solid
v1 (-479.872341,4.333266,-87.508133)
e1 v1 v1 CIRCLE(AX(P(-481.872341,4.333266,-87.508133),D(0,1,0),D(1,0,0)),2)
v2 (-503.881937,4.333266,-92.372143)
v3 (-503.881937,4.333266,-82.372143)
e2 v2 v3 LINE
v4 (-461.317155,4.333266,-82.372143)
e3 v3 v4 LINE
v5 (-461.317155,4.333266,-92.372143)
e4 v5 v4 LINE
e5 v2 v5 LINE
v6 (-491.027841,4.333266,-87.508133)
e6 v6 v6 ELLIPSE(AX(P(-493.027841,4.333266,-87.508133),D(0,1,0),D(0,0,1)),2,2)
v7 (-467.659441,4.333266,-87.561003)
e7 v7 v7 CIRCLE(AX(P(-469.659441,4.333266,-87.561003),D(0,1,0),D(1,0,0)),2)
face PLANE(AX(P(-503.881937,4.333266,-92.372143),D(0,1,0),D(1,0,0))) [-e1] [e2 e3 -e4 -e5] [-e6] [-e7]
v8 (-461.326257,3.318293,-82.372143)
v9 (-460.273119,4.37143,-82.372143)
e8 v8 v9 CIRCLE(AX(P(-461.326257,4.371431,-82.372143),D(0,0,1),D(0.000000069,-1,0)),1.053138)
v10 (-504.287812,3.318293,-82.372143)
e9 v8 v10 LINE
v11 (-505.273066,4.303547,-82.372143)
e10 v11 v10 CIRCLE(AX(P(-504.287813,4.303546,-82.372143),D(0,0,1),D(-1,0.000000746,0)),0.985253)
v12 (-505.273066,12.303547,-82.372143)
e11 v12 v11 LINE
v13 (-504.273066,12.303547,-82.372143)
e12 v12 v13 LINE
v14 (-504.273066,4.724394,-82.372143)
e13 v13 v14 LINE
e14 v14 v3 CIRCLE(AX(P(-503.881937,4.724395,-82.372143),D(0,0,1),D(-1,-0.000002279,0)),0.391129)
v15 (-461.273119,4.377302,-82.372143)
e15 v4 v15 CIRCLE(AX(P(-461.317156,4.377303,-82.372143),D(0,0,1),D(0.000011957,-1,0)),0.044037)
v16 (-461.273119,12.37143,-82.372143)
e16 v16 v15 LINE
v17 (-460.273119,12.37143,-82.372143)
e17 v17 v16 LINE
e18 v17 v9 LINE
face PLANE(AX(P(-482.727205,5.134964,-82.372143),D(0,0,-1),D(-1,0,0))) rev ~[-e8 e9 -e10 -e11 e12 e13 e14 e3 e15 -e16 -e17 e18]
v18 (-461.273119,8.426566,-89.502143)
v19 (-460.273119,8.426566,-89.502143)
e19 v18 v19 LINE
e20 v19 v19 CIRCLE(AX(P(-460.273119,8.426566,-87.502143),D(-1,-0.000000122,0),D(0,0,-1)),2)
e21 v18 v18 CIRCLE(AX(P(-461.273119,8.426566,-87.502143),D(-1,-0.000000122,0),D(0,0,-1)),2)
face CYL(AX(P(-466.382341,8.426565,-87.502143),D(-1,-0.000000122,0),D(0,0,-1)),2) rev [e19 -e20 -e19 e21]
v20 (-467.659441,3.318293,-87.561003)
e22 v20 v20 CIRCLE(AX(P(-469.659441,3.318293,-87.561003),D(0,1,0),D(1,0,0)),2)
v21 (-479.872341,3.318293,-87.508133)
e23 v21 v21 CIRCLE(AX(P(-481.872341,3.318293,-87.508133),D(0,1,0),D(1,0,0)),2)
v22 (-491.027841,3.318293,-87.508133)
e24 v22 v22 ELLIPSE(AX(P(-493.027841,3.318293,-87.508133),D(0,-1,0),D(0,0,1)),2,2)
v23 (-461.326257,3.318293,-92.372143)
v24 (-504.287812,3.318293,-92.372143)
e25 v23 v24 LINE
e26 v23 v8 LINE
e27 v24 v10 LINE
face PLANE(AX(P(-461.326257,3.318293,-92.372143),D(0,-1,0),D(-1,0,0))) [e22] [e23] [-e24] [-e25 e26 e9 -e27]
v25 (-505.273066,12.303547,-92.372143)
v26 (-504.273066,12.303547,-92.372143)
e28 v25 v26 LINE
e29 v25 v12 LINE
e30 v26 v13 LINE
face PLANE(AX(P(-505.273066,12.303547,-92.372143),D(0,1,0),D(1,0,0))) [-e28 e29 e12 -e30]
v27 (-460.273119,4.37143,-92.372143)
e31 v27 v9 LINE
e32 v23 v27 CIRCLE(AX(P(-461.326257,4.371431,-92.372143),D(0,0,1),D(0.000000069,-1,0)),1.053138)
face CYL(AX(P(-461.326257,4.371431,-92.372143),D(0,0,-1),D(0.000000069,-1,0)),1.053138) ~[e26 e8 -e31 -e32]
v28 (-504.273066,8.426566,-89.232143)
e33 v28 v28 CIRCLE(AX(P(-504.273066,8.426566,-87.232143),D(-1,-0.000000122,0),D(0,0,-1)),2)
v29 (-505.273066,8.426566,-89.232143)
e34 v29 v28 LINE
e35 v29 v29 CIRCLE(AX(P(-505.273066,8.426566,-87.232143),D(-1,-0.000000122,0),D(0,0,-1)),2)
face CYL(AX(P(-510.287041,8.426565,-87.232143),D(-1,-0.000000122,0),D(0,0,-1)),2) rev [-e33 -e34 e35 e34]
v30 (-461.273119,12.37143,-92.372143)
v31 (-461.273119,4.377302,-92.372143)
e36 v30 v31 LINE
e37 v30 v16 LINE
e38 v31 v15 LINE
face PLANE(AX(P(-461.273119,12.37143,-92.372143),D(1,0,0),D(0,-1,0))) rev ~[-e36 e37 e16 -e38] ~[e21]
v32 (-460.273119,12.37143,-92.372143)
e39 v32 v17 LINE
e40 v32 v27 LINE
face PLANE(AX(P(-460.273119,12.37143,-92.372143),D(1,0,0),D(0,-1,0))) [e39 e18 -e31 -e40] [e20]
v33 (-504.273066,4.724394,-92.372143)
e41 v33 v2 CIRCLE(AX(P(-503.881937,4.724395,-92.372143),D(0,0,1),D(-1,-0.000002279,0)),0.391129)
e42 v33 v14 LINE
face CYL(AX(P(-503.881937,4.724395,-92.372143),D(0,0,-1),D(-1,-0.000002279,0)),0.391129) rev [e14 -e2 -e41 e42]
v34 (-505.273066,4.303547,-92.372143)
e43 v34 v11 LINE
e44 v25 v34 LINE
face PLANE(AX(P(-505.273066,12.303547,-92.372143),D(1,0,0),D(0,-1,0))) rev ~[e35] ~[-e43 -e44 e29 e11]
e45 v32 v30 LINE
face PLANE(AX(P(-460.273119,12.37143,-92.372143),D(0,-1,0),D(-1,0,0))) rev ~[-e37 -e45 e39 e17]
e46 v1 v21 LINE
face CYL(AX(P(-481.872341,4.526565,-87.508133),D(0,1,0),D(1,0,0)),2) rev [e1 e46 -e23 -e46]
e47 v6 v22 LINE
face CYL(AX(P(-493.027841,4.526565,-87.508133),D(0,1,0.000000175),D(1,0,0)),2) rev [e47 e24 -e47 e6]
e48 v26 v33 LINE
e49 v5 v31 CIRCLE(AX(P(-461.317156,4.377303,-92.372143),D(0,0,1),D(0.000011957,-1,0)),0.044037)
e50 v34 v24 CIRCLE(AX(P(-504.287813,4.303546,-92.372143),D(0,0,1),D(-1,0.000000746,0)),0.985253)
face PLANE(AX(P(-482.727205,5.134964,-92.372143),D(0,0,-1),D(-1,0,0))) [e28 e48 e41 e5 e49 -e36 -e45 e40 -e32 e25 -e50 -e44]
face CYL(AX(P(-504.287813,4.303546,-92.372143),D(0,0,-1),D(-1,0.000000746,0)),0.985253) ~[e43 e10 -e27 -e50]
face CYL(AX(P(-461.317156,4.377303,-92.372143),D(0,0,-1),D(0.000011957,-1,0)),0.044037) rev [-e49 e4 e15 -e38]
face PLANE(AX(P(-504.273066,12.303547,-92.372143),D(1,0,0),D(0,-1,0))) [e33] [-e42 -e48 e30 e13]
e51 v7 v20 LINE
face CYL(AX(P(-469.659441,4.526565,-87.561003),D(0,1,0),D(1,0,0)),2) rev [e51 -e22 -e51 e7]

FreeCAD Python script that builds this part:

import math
import FreeCAD as App
import Part
import Sketcher

V = App.Vector
Q = App.Units.Quantity

doc = App.newDocument("Part")
body = doc.addObject("PartDesign::Body", "Body")

# Sketch on XY plane
sketch1 = body.newObject("Sketcher::SketchObject", "Sketch")
sketch1.AttachmentSupport = (doc.getObject("XY_Plane"), [""])
sketch1.MapMode = "FlatFace"
sketch1.addGeometry(Part.Circle(V(0, 0, 0), V(0, 0, 1), 2), False)
sketch1.addConstraint(Sketcher.Constraint("Coincident", 0, 3, -1, 1))
sketch1.addConstraint(Sketcher.Constraint("Diameter", 0, Q("4 mm")))
pad1 = body.newObject("PartDesign::Pad", "Pad")
pad1.Profile = sketch1
pad1.Length = 10
body2 = doc.addObject("PartDesign::Body", "Body001")
doc.recompute()

body.Placement = App.Placement(V(0, 0, 0), App.Rotation(V(0, 1, 0), 90))
boolean = body2.newObject("PartDesign::Boolean", "Boolean")
boolean.Type = "Fuse"
boolean.addObjects([body])
body3 = doc.addObject("PartDesign::Body", "Body002")
doc.recompute()

body2.Placement = App.Placement(V(15.49, 3.9, 4.87), App.Rotation(V(0, 0, 1), 0.000007))
boolean2 = body3.newObject("PartDesign::Boolean", "Boolean001")
boolean2.Type = "Fuse"
boolean2.addObjects([body2])
body4 = doc.addObject("PartDesign::Body", "Body003")

# Sketch on XY plane
sketch2 = body4.newObject("Sketcher::SketchObject", "Sketch001")
sketch2.AttachmentSupport = (doc.getObject("XY_Plane003"), [""])
sketch2.MapMode = "FlatFace"
sketch2.addGeometry(Part.Circle(V(0, 0, 0), V(0, 0, 1), 2), False)
sketch2.addConstraint(Sketcher.Constraint("Coincident", 0, 3, -1, 1))
sketch2.addConstraint(Sketcher.Constraint("Diameter", 0, Q("4 mm")))
pad2 = body4.newObject("PartDesign::Pad", "Pad001")
pad2.Profile = sketch2
pad2.Length = 10
body5 = doc.addObject("PartDesign::Body", "Body004")
doc.recompute()

body4.Placement = App.Placement(V(0, 0, 0), App.Rotation(V(0, 1, 0), 90))
boolean3 = body5.newObject("PartDesign::Boolean", "Boolean002")
boolean3.Type = "Fuse"
boolean3.addObjects([body4])
body6 = doc.addObject("PartDesign::Body", "Body005")
doc.recompute()

body5.Placement = App.Placement(V(-28.4147, 3.9, 5.14), App.Rotation(V(0, 0, 1), 0.000007))
boolean4 = body6.newObject("PartDesign::Boolean", "Boolean003")
boolean4.Type = "Fuse"
boolean4.addObjects([body5])
body7 = doc.addObject("PartDesign::Body", "Body006")

# Sketch on XY plane
sketch3 = body7.newObject("Sketcher::SketchObject", "Sketch002")
sketch3.AttachmentSupport = (doc.getObject("XY_Plane006"), [""])
sketch3.MapMode = "FlatFace"
sketch3.addGeometry(Part.Circle(V(0, 0, 0), V(0, 0, 1), 2), False)
sketch3.addConstraint(Sketcher.Constraint("Coincident", 0, 3, -1, 1))
sketch3.addConstraint(Sketcher.Constraint("Diameter", 0, Q("4 mm")))
pad3 = body7.newObject("PartDesign::Pad", "Pad002")
pad3.Profile = sketch3
pad3.Length = 2
body8 = doc.addObject("PartDesign::Body", "Body007")
doc.recompute()

body7.Placement = App.Placement(V(0, 0, 0), App.Rotation(V(1, 0, 0), 271.492946))
boolean5 = body8.newObject("PartDesign::Boolean", "Boolean004")
boolean5.Type = "Fuse"
boolean5.addObjects([body7])
body9 = doc.addObject("PartDesign::Body", "Body008")
doc.recompute()

body8.Placement = App.Placement(V(0, 0, 0), App.Rotation(V(0, 1, 0), 272.98249))
boolean6 = body9.newObject("PartDesign::Boolean", "Boolean005")
boolean6.Type = "Fuse"
boolean6.addObjects([body8])
body10 = doc.addObject("PartDesign::Body", "Body009")
doc.recompute()

body9.Placement = App.Placement(V(-26, 5.29, 4.9), App.Rotation(V(0, 0, 1), 267.755985))
boolean7 = body10.newObject("PartDesign::Boolean", "Boolean006")
boolean7.Type = "Fuse"
boolean7.addObjects([body9])
body11 = doc.addObject("PartDesign::Body", "Body010")

# Sketch on XY plane
sketch4 = body11.newObject("Sketcher::SketchObject", "Sketch003")
sketch4.AttachmentSupport = (doc.getObject("XY_Plane010"), [""])
sketch4.MapMode = "FlatFace"
sketch4.addGeometry(Part.Circle(V(0, 0, 0), V(0, 0, 1), 2), False)
sketch4.addConstraint(Sketcher.Constraint("Coincident", 0, 3, -1, 1))
sketch4.addConstraint(Sketcher.Constraint("Diameter", 0, Q("4 mm")))
pad4 = body11.newObject("PartDesign::Pad", "Pad003")
pad4.Profile = sketch4
pad4.Length = 2
body12 = doc.addObject("PartDesign::Body", "Body011")
doc.recompute()

body11.Placement = App.Placement(V(-11.1555, 0, 4.86401), App.Rotation(V(1, 0, 0), 90.00001))
boolean8 = body12.newObject("PartDesign::Boolean", "Boolean007")
boolean8.Type = "Fuse"
boolean8.addObjects([body11])
body13 = doc.addObject("PartDesign::Body", "Body012")

# Sketch on XY plane
sketch5 = body13.newObject("Sketcher::SketchObject", "Sketch004")
sketch5.AttachmentSupport = (doc.getObject("XY_Plane012"), [""])
sketch5.MapMode = "FlatFace"
sketch5.addGeometry(Part.Circle(V(0, 0, 0), V(0, 0, 1), 2), False)
sketch5.addConstraint(Sketcher.Constraint("Coincident", 0, 3, -1, 1))
sketch5.addConstraint(Sketcher.Constraint("Diameter", 0, Q("4 mm")))
pad5 = body13.newObject("PartDesign::Pad", "Pad004")
pad5.Profile = sketch5
pad5.Length = 2
body14 = doc.addObject("PartDesign::Body", "Body013")
doc.recompute()

body13.Placement = App.Placement(V(0, 0, 0), App.Rotation(V(1, 0, 0), 90))
boolean9 = body14.newObject("PartDesign::Boolean", "Boolean008")
boolean9.Type = "Fuse"
boolean9.addObjects([body13])
body15 = doc.addObject("PartDesign::Body", "Body014")
doc.recompute()

body14.Placement = App.Placement(V(0, 0, 4.86401), App.Rotation(V(0, 0, 1), 0))
boolean10 = body15.newObject("PartDesign::Boolean", "Boolean009")
boolean10.Type = "Fuse"
boolean10.addObjects([body14])
body16 = doc.addObject("PartDesign::Body", "Body015")

# Sketch on XY plane
sketch6 = body16.newObject("Sketcher::SketchObject", "Sketch005")
sketch6.AttachmentSupport = (doc.getObject("XY_Plane015"), [""])
sketch6.MapMode = "FlatFace"
sketch6.addGeometry(Part.Circle(V(0, 0, 0), V(0, 0, 1), 2), False)
sketch6.addConstraint(Sketcher.Constraint("Coincident", 0, 3, -1, 1))
sketch6.addConstraint(Sketcher.Constraint("Diameter", 0, Q("4 mm")))
pad6 = body16.newObject("PartDesign::Pad", "Pad005")
pad6.Profile = sketch6
pad6.Length = 2
body17 = doc.addObject("PartDesign::Body", "Body016")
doc.recompute()

body16.Placement = App.Placement(V(0, 0, 0), App.Rotation(V(1, 0, 0), 90))
boolean11 = body17.newObject("PartDesign::Boolean", "Boolean010")
boolean11.Type = "Fuse"
boolean11.addObjects([body16])
body18 = doc.addObject("PartDesign::Body", "Body017")
doc.recompute()

body17.Placement = App.Placement(V(12.2129, 0, 4.81114), App.Rotation(V(0, 0, 1), 0))
boolean12 = body18.newObject("PartDesign::Boolean", "Boolean011")
boolean12.Type = "Fuse"
boolean12.addObjects([body17])
body19 = doc.addObject("PartDesign::Body", "Body018")

# Sketch on XY plane
sketch7 = body19.newObject("Sketcher::SketchObject", "Sketch006")
sketch7.AttachmentSupport = (doc.getObject("XY_Plane018"), [""])
sketch7.MapMode = "FlatFace"
sketch7.addGeometry(Part.Circle(V(0, 0, 0), V(0, 0, 1), 2), False)
sketch7.addConstraint(Sketcher.Constraint("Coincident", 0, 3, -1, 1))
sketch7.addConstraint(Sketcher.Constraint("Diameter", 0, Q("4 mm")))
pad7 = body19.newObject("PartDesign::Pad", "Pad006")
pad7.Profile = sketch7
pad7.Length = 2
body20 = doc.addObject("PartDesign::Body", "Body019")
doc.recompute()

body19.Placement = App.Placement(V(0, 0, 0), App.Rotation(V(1, 0, 0), 271.492946))
boolean13 = body20.newObject("PartDesign::Boolean", "Boolean012")
boolean13.Type = "Fuse"
boolean13.addObjects([body19])
body21 = doc.addObject("PartDesign::Body", "Body020")
doc.recompute()

body20.Placement = App.Placement(V(0, 0, 0), App.Rotation(V(0, 1, 0), 272.98249))
boolean14 = body21.newObject("PartDesign::Boolean", "Boolean013")
boolean14.Type = "Fuse"
boolean14.addObjects([body20])
body22 = doc.addObject("PartDesign::Body", "Body021")
doc.recompute()

body21.Placement = App.Placement(V(25, 5.38, 4.9), App.Rotation(V(0, 0, 1), 267.755985))
boolean15 = body22.newObject("PartDesign::Boolean", "Boolean014")
boolean15.Type = "Fuse"
boolean15.addObjects([body21])
body23 = doc.addObject("PartDesign::Body", "Body022")

# Sketch on XY plane
sketch8 = body23.newObject("Sketcher::SketchObject", "Sketch007")
sketch8.AttachmentSupport = (doc.getObject("XY_Plane022"), [""])
sketch8.MapMode = "FlatFace"
sketch8.addGeometry(Part.LineSegment(V(-22.415471, -1.208272, 0), V(20.546084, -1.208272, 0)), False)
sketch8.addGeometry(Part.ArcOfCircle(Part.Circle(V(20.546084, -0.155134, 0), V(0, 0, 1), 1.053138), math.radians(-89.999996), math.radians(-0.000058)), False)
sketch8.addGeometry(Part.LineSegment(V(21.599222, -0.155135, 0), V(21.599222, 7.844865, 0)), False)
sketch8.addGeometry(Part.LineSegment(V(21.599222, 7.844865, 0), V(20.599222, 7.844865, 0)), False)
sketch8.addGeometry(Part.LineSegment(V(20.599222, 7.844865, 0), V(20.599222, -0.149263, 0)), False)
sketch8.addGeometry(Part.ArcOfCircle(Part.Circle(V(20.555185, -0.149262, 0), V(0, 0, 1), 0.044037), math.radians(-89.999314), math.radians(-0.000686)), False)
sketch8.addGeometry(Part.LineSegment(V(20.555186, -0.193299, 0), V(-22.009596, -0.193299, 0)), False)
sketch8.addGeometry(Part.ArcOfCircle(Part.Circle(V(-22.009596, 0.19783, 0), V(0, 0, 1), 0.391129), math.radians(-179.999869), math.radians(-89.999984)), False)
sketch8.addGeometry(Part.LineSegment(V(-22.400725, 0.197829, 0), V(-22.400725, 7.776982, 0)), False)
sketch8.addGeometry(Part.LineSegment(V(-22.400725, 7.776982, 0), V(-23.400725, 7.776982, 0)), False)
sketch8.addGeometry(Part.LineSegment(V(-23.400725, 7.776982, 0), V(-23.400725, -0.223018, 0)), False)
sketch8.addGeometry(Part.ArcOfCircle(Part.Circle(V(-22.415472, -0.223019, 0), V(0, 0, 1), 0.985253), math.radians(179.999957), math.radians(270.000043)), False)
sketch8.addConstraint(Sketcher.Constraint("Tangent", 0, 2, 1, 1))
sketch8.addConstraint(Sketcher.Constraint("Tangent", 1, 2, 2, 1))
sketch8.addConstraint(Sketcher.Constraint("Coincident", 2, 2, 3, 1))
sketch8.addConstraint(Sketcher.Constraint("Coincident", 3, 2, 4, 1))
sketch8.addConstraint(Sketcher.Constraint("Coincident", 4, 2, 5, 2))
sketch8.addConstraint(Sketcher.Constraint("Coincident", 5, 1, 6, 1))
sketch8.addConstraint(Sketcher.Constraint("Tangent", 6, 2, 7, 2))
sketch8.addConstraint(Sketcher.Constraint("Coincident", 7, 1, 8, 1))
sketch8.addConstraint(Sketcher.Constraint("Coincident", 8, 2, 9, 1))
sketch8.addConstraint(Sketcher.Constraint("Coincident", 9, 2, 10, 1))
sketch8.addConstraint(Sketcher.Constraint("Tangent", 10, 2, 11, 1))
sketch8.addConstraint(Sketcher.Constraint("Tangent", 11, 2, 0, 1))
sketch8.addConstraint(Sketcher.Constraint("Horizontal", 0))
sketch8.addConstraint(Sketcher.Constraint("Vertical", 2))
sketch8.addConstraint(Sketcher.Constraint("Horizontal", 3))
sketch8.addConstraint(Sketcher.Constraint("Vertical", 4))
sketch8.addConstraint(Sketcher.Constraint("Horizontal", 6))
sketch8.addConstraint(Sketcher.Constraint("Vertical", 8))
sketch8.addConstraint(Sketcher.Constraint("Horizontal", 9))
sketch8.addConstraint(Sketcher.Constraint("Vertical", 10))
sketch8.addConstraint(Sketcher.Constraint("Horizontal", 5, 3, 4, 2))
sketch8.addConstraint(Sketcher.Constraint("Equal", 3, 9))
sketch8.addConstraint(Sketcher.Constraint("Equal", 2, 10))
sketch8.addConstraint(Sketcher.Constraint("DistanceX", 3, 2, 3, 1, Q("1 mm")))
sketch8.addConstraint(Sketcher.Constraint("DistanceY", 2, 1, 2, 2, Q("8 mm")))
sketch8.addConstraint(Sketcher.Constraint("Radius", 1, Q("1.053138 mm")))
sketch8.addConstraint(Sketcher.Constraint("Radius", 7, Q("0.391129 mm")))
sketch8.addConstraint(Sketcher.Constraint("Radius", 5, Q("0.044037 mm")))
sketch8.addConstraint(Sketcher.Constraint("Radius", 11, Q("0.985253 mm")))
sketch8.addConstraint(Sketcher.Constraint("DistanceX", 6, 2, 6, 1, Q("42.564782 mm")))
sketch8.addConstraint(Sketcher.Constraint("DistanceY", 4, 2, 4, 1, Q("7.994128 mm")))
sketch8.addConstraint(Sketcher.Constraint("DistanceY", 5, 1, -1, 1, Q("0.193299 mm")))
sketch8.addConstraint(Sketcher.Constraint("DistanceX", 0, 2, 5, 1, Q("0.009102 mm")))
sketch8.addConstraint(Sketcher.Constraint("DistanceY", 11, 2, 7, 1, Q("1.406101 mm")))
sketch8.addConstraint(Sketcher.Constraint("DistanceX", 11, 3, -1, 1, Q("22.415472 mm")))
pad8 = body23.newObject("PartDesign::Pad", "Pad007")
pad8.Profile = sketch8
pad8.Length = 10
doc.recompute()

boolean16 = body23.newObject("PartDesign::Boolean", "Boolean015")
boolean16.Type = "Cut"
boolean16.addObjects([body22])
doc.recompute()

boolean17 = body23.newObject("PartDesign::Boolean", "Boolean016")
boolean17.Type = "Cut"
boolean17.addObjects([body18])
doc.recompute()

boolean18 = body23.newObject("PartDesign::Boolean", "Boolean017")
boolean18.Type = "Cut"
boolean18.addObjects([body15])
doc.recompute()

boolean19 = body23.newObject("PartDesign::Boolean", "Boolean018")
boolean19.Type = "Cut"
boolean19.addObjects([body12])
doc.recompute()

boolean20 = body23.newObject("PartDesign::Boolean", "Boolean019")
boolean20.Type = "Cut"
boolean20.addObjects([body10])
doc.recompute()

boolean21 = body23.newObject("PartDesign::Boolean", "Boolean020")
boolean21.Type = "Cut"
boolean21.addObjects([body6])
doc.recompute()

boolean22 = body23.newObject("PartDesign::Boolean", "Boolean021")
boolean22.Type = "Cut"
boolean22.addObjects([body3])
body24 = doc.addObject("PartDesign::Body", "Body023")
doc.recompute()

body23.Placement = App.Placement(V(-481.872341, 4.526565, -92.372143), App.Rotation(V(0, 0, 1), 0))
boolean23 = body24.newObject("PartDesign::Boolean", "Boolean022")
boolean23.Type = "Fuse"
boolean23.addObjects([body23])

doc.recompute()
